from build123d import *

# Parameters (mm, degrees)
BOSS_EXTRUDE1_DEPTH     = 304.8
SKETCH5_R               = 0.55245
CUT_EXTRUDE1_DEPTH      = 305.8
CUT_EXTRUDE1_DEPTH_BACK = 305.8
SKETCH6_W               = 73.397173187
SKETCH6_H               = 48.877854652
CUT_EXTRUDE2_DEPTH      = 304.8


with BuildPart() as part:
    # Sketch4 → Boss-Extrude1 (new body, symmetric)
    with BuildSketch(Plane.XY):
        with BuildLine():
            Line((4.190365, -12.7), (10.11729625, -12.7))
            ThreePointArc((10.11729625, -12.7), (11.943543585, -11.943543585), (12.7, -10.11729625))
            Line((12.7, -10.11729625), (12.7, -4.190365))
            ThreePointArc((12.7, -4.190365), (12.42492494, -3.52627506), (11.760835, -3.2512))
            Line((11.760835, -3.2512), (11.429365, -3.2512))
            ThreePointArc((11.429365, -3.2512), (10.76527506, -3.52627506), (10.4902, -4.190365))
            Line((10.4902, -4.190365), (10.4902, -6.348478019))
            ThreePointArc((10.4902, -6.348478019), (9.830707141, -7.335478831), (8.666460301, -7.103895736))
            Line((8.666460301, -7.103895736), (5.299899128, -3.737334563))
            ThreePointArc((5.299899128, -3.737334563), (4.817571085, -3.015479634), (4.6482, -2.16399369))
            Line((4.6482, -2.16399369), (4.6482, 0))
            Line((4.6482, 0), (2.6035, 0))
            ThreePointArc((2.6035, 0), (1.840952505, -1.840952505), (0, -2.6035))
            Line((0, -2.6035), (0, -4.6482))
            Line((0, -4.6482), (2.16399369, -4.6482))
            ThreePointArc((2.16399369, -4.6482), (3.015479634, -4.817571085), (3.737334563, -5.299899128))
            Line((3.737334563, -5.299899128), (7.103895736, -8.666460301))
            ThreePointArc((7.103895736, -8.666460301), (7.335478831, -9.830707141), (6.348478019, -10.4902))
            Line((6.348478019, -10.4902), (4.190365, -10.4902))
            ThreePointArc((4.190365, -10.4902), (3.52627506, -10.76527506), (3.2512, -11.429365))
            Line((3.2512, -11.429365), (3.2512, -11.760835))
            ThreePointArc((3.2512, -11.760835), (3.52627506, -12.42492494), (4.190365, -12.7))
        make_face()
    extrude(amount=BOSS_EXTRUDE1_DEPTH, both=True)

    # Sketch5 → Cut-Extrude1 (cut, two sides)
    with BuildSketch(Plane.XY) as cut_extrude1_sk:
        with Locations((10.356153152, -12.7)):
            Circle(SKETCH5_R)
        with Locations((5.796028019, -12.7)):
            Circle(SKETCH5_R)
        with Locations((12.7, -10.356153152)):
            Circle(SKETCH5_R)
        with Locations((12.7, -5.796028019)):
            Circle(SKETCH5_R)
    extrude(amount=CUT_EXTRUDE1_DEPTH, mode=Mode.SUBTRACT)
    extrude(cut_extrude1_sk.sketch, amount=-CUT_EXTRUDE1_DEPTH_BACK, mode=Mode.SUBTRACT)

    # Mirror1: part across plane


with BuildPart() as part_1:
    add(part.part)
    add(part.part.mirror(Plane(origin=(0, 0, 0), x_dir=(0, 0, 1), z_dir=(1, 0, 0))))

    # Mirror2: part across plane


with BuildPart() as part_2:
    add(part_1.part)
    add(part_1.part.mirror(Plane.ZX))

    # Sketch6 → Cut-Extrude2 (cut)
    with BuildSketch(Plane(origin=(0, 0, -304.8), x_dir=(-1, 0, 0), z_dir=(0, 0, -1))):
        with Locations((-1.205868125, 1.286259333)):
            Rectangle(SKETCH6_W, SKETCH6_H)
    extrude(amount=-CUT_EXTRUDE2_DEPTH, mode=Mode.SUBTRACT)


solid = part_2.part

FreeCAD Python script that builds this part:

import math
import FreeCAD as App
import Part
import Sketcher
from FreeCAD import Vector
Q = App.Units.Quantity


def add_polygon(sketch, points):
    """Adds a closed chain of lines whose ends are joined by coincident constraints."""
    first, n = sketch.GeometryCount, len(points)
    for a, b in zip(points, points[1:] + points[:1]):
        sketch.addGeometry(Part.LineSegment(App.Vector(*a, 0), App.Vector(*b, 0)), False)
    for i in range(n):
        sketch.addConstraint(Sketcher.Constraint("Coincident", first + i, 2, first + (i + 1) % n, 1))

doc = App.newDocument("Part")
body = doc.addObject("PartDesign::Body", "Body")

sketch1 = body.newObject("Sketcher::SketchObject", "Sketch")
sketch1.AttachmentSupport = (doc.getObject("XY_Plane"), [""])
sketch1.MapMode = "FlatFace"
sketch1.addGeometry([
    Part.LineSegment(Vector(4.19, -12.7, 0), Vector(10.12, -12.7, 0)),
    Part.ArcOfCircle(Part.Circle(Vector(10.12, -10.12, 0), Vector(0, 0, 1), 2.58), math.radians(-90), math.radians(0)),
    Part.LineSegment(Vector(12.7, -10.12, 0), Vector(12.7, -4.19, 0)),
    Part.ArcOfCircle(Part.Circle(Vector(11.76, -4.19, 0), Vector(0, 0, 1), 0.94), math.radians(0), math.radians(90)),
    Part.LineSegment(Vector(11.76, -3.25, 0), Vector(11.43, -3.25, 0)),
    Part.ArcOfCircle(Part.Circle(Vector(11.43, -4.19, 0), Vector(0, 0, 1), 0.94), math.radians(90), math.radians(180)),
    Part.LineSegment(Vector(10.49, -4.19, 0), Vector(10.49, -6.35, 0)),
    Part.ArcOfCircle(Part.Circle(Vector(9.42, -6.35, 0), Vector(0, 0, 1), 1.07), math.radians(-135), math.radians(0)),
    Part.LineSegment(Vector(8.67, -7.1, 0), Vector(5.3, -3.74, 0)),
    Part.ArcOfCircle(Part.Circle(Vector(6.87, -2.16, 0), Vector(0, 0, 1), 2.23), math.radians(-180), math.radians(-135)),
    Part.LineSegment(Vector(4.65, -2.16, 0), Vector(4.65, 0, 0)),
    Part.LineSegment(Vector(4.65, 0, 0), Vector(2.6, 0, 0)),
    Part.ArcOfCircle(Part.Circle(Vector(0, 0, 0), Vector(0, 0, 1), 2.6), math.radians(-90), math.radians(0)),
    Part.LineSegment(Vector(0, -2.6, 0), Vector(0, -4.65, 0)),
    Part.LineSegment(Vector(0, -4.65, 0), Vector(2.16, -4.65, 0)),
    Part.ArcOfCircle(Part.Circle(Vector(2.16, -6.87, 0), Vector(0, 0, 1), 2.23), math.radians(45), math.radians(90)),
    Part.LineSegment(Vector(3.74, -5.3, 0), Vector(7.1, -8.67, 0)),
    Part.ArcOfCircle(Part.Circle(Vector(6.35, -9.42, 0), Vector(0, 0, 1), 1.07), math.radians(-90), math.radians(45)),
    Part.LineSegment(Vector(6.35, -10.49, 0), Vector(4.19, -10.49, 0)),
    Part.ArcOfCircle(Part.Circle(Vector(4.19, -11.43, 0), Vector(0, 0, 1), 0.94), math.radians(90), math.radians(180)),
    Part.LineSegment(Vector(3.25, -11.43, 0), Vector(3.25, -11.76, 0)),
    Part.ArcOfCircle(Part.Circle(Vector(4.19, -11.76, 0), Vector(0, 0, 1), 0.94), math.radians(-180), math.radians(-90)),
], False)
sketch1.addConstraint([
    Sketcher.Constraint("Tangent", 0, 2, 1, 1),
    Sketcher.Constraint("Tangent", 1, 2, 2, 1),
    Sketcher.Constraint("Tangent", 2, 2, 3, 1),
    Sketcher.Constraint("Tangent", 3, 2, 4, 1),
    Sketcher.Constraint("Tangent", 4, 2, 5, 1),
    Sketcher.Constraint("Tangent", 5, 2, 6, 1),
    Sketcher.Constraint("Tangent", 6, 2, 7, 2),
    Sketcher.Constraint("Tangent", 7, 1, 8, 1),
    Sketcher.Constraint("Tangent", 8, 2, 9, 2),
    Sketcher.Constraint("Tangent", 9, 1, 10, 1),
    Sketcher.Constraint("Coincident", 10, 2, 11, 1),
    Sketcher.Constraint("Coincident", 11, 2, 12, 2),
    Sketcher.Constraint("Coincident", 12, 1, 13, 1),
    Sketcher.Constraint("Coincident", 13, 2, 14, 1),
    Sketcher.Constraint("Tangent", 14, 2, 15, 2),
    Sketcher.Constraint("Tangent", 15, 1, 16, 1),
    Sketcher.Constraint("Tangent", 16, 2, 17, 2),
    Sketcher.Constraint("Tangent", 17, 1, 18, 1),
    Sketcher.Constraint("Tangent", 18, 2, 19, 1),
    Sketcher.Constraint("Tangent", 19, 2, 20, 1),
    Sketcher.Constraint("Tangent", 20, 2, 21, 1),
    Sketcher.Constraint("Tangent", 21, 2, 0, 1),
    Sketcher.Constraint("Horizontal", 0),
    Sketcher.Constraint("Vertical", 2),
    Sketcher.Constraint("Horizontal", 4),
    Sketcher.Constraint("Vertical", 6),
    Sketcher.Constraint("Vertical", 10),
    Sketcher.Constraint("Horizontal", 11),
    Sketcher.Constraint("Vertical", 13),
    Sketcher.Constraint("Horizontal", 14),
    Sketcher.Constraint("Horizontal", 18),
    Sketcher.Constraint("Vertical", 20),
    Sketcher.Constraint("Coincident", 12, 3, -1, 1),
    Sketcher.Constraint("Equal", 3, 5),
    Sketcher.Constraint("Equal", 9, 15),
    Sketcher.Constraint("Equal", 7, 17),
    Sketcher.Constraint("Equal", 5, 19),
    Sketcher.Constraint("Equal", 19, 21),
    Sketcher.Constraint("PointOnObject", 10, 2, -1),
    Sketcher.Constraint("PointOnObject", 12, 1, -2),
    Sketcher.Constraint("Parallel", 8, 16),
    Sketcher.Constraint("Equal", 0, 2),
    Sketcher.Constraint("Equal", 18, 6),
    Sketcher.Constraint("Equal", 14, 10),
    Sketcher.Constraint("Equal", 11, 13),
    Sketcher.Constraint("Equal", 4, 20),
    Sketcher.Constraint("Equal", 8, 16),
    Sketcher.Constraint("DistanceY", 0, 2, -1, 1, Q("0.5 in")),
    Sketcher.Constraint("Radius", 9, Q("0.0876 in")),
    Sketcher.Constraint("Radius", 12, Q("0.1025 in")),
    Sketcher.Constraint("DistanceX", 9, 1, 5, 2, Q("0.23 in")),
    Sketcher.Constraint("DistanceX", 11, 2, 11, 1, Q("0.0805 in")),
    Sketcher.Constraint("DistanceY", 3, 2, -1, 1, Q("0.128 in")),
    Sketcher.Constraint("Radius", 7, 1.068322),
    Sketcher.Constraint("DistanceX", 17, 3, 7, 3, Q("0.121 in")),
    Sketcher.Constraint("Radius", 1, 2.582704),
    Sketcher.Constraint("Radius", 3, 0.939165),
])
pad1 = body.newObject("PartDesign::Pad", "Pad")
pad1.Profile = sketch1
pad1.Length = Q("24 in")
pad1.Midplane = True

sketch2 = body.newObject("Sketcher::SketchObject", "Sketch001")
sketch2.AttachmentSupport = (doc.getObject("XY_Plane"), [""])
sketch2.MapMode = "FlatFace"
sketch2.addGeometry([
    Part.Circle(Vector(10.4, -12.7, 0), Vector(0, 0, 1), 0.6),
    Part.Circle(Vector(5.8, -12.7, 0), Vector(0, 0, 1), 0.6),
    Part.Circle(Vector(12.7, -10.4, 0), Vector(0, 0, 1), 0.6),
    Part.Circle(Vector(12.7, -5.8, 0), Vector(0, 0, 1), 0.6),
], False)
sketch2.addConstraint([
    Sketcher.Constraint("Equal", 0, 1),
    Sketcher.Constraint("Equal", 1, 2),
    Sketcher.Constraint("Equal", 2, 3),
    Sketcher.Constraint("Horizontal", 0, 3, 1, 3),
    Sketcher.Constraint("Vertical", 2, 3, 3, 3),
    Sketcher.Constraint("Diameter", 0, Q("0.0435 in")),
    Sketcher.Constraint("DistanceY", 0, 3, -1, 1, Q("0.5 in")),
    Sketcher.Constraint("DistanceX", -1, 1, 2, 3, Q("0.5 in")),
    Sketcher.Constraint("DistanceX", -1, 1, 1, 3, 5.796028),
    Sketcher.Constraint("DistanceY", 3, 3, -1, 1, 5.796028),
    Sketcher.Constraint("DistanceX", -1, 1, 0, 3, 10.356153),
    Sketcher.Constraint("DistanceY", 2, 3, -1, 1, 10.356153),
])
pocket1 = body.newObject("PartDesign::Pocket", "Pocket")
pocket1.Profile = sketch2
pocket1.Type = "ThroughAll"
pocket1.Midplane = True
body2 = doc.addObject("PartDesign::Body", "Body001")
doc.recompute()

body2.BaseFeature = body
doc.recompute()

mirroring = doc.addObject("Part::Mirroring", "Mirroring")
mirroring.Source = body
mirroring.Base = Vector(0, 0, 0)
mirroring.Normal = Vector(1, 0, 0)
body3 = doc.addObject("PartDesign::Body", "Body002")
body3.BaseFeature = mirroring
boolean = body2.newObject("PartDesign::Boolean", "Boolean")
boolean.Type = "Fuse"
boolean.addObjects([body3])
doc.recompute()
body4 = doc.addObject("PartDesign::Body", "Body003")
doc.recompute()

body4.BaseFeature = body2
doc.recompute()

mirroring2 = doc.addObject("Part::Mirroring", "Mirroring001")
mirroring2.Source = body2
mirroring2.Base = Vector(0, 0, 0)
mirroring2.Normal = Vector(0, 1, 0)
body5 = doc.addObject("PartDesign::Body", "Body004")
body5.BaseFeature = mirroring2
boolean2 = body4.newObject("PartDesign::Boolean", "Boolean001")
boolean2.Type = "Fuse"
boolean2.addObjects([body5])
doc.recompute()

sketch3 = body4.newObject("Sketcher::SketchObject", "Sketch002")
sketch3.AttachmentSupport = (doc.getObject("XY_Plane003"), [""])
sketch3.MapMode = "FlatFace"
sketch3.AttachmentOffset = App.Placement(Vector(0, 0, -12 * 25.4), App.Rotation())
add_polygon(sketch3, [(38, 26), (38, -23), (-35, -23), (-35, 26)])
sketch3.addConstraint([
    Sketcher.Constraint("Vertical", 0),
    Sketcher.Constraint("Horizontal", 1),
    Sketcher.Constraint("Vertical", 2),
    Sketcher.Constraint("Horizontal", 3),
    Sketcher.Constraint("DistanceX", 1, 2, 1, 1, 73.397173),
    Sketcher.Constraint("DistanceY", 0, 2, 0, 1, 48.877855),
    Sketcher.Constraint("DistanceX", 1, 2, -1, 1, 35.492718),
    Sketcher.Constraint("DistanceY", 0, 2, -1, 1, 23.152668),
])
pocket2 = body4.newObject("PartDesign::Pocket", "Pocket001")
pocket2.Profile = sketch3
pocket2.Length = Q("12 in")
pocket2.Reversed = True
mirroring.Visibility = False
mirroring2.Visibility = False

doc.recompute()
